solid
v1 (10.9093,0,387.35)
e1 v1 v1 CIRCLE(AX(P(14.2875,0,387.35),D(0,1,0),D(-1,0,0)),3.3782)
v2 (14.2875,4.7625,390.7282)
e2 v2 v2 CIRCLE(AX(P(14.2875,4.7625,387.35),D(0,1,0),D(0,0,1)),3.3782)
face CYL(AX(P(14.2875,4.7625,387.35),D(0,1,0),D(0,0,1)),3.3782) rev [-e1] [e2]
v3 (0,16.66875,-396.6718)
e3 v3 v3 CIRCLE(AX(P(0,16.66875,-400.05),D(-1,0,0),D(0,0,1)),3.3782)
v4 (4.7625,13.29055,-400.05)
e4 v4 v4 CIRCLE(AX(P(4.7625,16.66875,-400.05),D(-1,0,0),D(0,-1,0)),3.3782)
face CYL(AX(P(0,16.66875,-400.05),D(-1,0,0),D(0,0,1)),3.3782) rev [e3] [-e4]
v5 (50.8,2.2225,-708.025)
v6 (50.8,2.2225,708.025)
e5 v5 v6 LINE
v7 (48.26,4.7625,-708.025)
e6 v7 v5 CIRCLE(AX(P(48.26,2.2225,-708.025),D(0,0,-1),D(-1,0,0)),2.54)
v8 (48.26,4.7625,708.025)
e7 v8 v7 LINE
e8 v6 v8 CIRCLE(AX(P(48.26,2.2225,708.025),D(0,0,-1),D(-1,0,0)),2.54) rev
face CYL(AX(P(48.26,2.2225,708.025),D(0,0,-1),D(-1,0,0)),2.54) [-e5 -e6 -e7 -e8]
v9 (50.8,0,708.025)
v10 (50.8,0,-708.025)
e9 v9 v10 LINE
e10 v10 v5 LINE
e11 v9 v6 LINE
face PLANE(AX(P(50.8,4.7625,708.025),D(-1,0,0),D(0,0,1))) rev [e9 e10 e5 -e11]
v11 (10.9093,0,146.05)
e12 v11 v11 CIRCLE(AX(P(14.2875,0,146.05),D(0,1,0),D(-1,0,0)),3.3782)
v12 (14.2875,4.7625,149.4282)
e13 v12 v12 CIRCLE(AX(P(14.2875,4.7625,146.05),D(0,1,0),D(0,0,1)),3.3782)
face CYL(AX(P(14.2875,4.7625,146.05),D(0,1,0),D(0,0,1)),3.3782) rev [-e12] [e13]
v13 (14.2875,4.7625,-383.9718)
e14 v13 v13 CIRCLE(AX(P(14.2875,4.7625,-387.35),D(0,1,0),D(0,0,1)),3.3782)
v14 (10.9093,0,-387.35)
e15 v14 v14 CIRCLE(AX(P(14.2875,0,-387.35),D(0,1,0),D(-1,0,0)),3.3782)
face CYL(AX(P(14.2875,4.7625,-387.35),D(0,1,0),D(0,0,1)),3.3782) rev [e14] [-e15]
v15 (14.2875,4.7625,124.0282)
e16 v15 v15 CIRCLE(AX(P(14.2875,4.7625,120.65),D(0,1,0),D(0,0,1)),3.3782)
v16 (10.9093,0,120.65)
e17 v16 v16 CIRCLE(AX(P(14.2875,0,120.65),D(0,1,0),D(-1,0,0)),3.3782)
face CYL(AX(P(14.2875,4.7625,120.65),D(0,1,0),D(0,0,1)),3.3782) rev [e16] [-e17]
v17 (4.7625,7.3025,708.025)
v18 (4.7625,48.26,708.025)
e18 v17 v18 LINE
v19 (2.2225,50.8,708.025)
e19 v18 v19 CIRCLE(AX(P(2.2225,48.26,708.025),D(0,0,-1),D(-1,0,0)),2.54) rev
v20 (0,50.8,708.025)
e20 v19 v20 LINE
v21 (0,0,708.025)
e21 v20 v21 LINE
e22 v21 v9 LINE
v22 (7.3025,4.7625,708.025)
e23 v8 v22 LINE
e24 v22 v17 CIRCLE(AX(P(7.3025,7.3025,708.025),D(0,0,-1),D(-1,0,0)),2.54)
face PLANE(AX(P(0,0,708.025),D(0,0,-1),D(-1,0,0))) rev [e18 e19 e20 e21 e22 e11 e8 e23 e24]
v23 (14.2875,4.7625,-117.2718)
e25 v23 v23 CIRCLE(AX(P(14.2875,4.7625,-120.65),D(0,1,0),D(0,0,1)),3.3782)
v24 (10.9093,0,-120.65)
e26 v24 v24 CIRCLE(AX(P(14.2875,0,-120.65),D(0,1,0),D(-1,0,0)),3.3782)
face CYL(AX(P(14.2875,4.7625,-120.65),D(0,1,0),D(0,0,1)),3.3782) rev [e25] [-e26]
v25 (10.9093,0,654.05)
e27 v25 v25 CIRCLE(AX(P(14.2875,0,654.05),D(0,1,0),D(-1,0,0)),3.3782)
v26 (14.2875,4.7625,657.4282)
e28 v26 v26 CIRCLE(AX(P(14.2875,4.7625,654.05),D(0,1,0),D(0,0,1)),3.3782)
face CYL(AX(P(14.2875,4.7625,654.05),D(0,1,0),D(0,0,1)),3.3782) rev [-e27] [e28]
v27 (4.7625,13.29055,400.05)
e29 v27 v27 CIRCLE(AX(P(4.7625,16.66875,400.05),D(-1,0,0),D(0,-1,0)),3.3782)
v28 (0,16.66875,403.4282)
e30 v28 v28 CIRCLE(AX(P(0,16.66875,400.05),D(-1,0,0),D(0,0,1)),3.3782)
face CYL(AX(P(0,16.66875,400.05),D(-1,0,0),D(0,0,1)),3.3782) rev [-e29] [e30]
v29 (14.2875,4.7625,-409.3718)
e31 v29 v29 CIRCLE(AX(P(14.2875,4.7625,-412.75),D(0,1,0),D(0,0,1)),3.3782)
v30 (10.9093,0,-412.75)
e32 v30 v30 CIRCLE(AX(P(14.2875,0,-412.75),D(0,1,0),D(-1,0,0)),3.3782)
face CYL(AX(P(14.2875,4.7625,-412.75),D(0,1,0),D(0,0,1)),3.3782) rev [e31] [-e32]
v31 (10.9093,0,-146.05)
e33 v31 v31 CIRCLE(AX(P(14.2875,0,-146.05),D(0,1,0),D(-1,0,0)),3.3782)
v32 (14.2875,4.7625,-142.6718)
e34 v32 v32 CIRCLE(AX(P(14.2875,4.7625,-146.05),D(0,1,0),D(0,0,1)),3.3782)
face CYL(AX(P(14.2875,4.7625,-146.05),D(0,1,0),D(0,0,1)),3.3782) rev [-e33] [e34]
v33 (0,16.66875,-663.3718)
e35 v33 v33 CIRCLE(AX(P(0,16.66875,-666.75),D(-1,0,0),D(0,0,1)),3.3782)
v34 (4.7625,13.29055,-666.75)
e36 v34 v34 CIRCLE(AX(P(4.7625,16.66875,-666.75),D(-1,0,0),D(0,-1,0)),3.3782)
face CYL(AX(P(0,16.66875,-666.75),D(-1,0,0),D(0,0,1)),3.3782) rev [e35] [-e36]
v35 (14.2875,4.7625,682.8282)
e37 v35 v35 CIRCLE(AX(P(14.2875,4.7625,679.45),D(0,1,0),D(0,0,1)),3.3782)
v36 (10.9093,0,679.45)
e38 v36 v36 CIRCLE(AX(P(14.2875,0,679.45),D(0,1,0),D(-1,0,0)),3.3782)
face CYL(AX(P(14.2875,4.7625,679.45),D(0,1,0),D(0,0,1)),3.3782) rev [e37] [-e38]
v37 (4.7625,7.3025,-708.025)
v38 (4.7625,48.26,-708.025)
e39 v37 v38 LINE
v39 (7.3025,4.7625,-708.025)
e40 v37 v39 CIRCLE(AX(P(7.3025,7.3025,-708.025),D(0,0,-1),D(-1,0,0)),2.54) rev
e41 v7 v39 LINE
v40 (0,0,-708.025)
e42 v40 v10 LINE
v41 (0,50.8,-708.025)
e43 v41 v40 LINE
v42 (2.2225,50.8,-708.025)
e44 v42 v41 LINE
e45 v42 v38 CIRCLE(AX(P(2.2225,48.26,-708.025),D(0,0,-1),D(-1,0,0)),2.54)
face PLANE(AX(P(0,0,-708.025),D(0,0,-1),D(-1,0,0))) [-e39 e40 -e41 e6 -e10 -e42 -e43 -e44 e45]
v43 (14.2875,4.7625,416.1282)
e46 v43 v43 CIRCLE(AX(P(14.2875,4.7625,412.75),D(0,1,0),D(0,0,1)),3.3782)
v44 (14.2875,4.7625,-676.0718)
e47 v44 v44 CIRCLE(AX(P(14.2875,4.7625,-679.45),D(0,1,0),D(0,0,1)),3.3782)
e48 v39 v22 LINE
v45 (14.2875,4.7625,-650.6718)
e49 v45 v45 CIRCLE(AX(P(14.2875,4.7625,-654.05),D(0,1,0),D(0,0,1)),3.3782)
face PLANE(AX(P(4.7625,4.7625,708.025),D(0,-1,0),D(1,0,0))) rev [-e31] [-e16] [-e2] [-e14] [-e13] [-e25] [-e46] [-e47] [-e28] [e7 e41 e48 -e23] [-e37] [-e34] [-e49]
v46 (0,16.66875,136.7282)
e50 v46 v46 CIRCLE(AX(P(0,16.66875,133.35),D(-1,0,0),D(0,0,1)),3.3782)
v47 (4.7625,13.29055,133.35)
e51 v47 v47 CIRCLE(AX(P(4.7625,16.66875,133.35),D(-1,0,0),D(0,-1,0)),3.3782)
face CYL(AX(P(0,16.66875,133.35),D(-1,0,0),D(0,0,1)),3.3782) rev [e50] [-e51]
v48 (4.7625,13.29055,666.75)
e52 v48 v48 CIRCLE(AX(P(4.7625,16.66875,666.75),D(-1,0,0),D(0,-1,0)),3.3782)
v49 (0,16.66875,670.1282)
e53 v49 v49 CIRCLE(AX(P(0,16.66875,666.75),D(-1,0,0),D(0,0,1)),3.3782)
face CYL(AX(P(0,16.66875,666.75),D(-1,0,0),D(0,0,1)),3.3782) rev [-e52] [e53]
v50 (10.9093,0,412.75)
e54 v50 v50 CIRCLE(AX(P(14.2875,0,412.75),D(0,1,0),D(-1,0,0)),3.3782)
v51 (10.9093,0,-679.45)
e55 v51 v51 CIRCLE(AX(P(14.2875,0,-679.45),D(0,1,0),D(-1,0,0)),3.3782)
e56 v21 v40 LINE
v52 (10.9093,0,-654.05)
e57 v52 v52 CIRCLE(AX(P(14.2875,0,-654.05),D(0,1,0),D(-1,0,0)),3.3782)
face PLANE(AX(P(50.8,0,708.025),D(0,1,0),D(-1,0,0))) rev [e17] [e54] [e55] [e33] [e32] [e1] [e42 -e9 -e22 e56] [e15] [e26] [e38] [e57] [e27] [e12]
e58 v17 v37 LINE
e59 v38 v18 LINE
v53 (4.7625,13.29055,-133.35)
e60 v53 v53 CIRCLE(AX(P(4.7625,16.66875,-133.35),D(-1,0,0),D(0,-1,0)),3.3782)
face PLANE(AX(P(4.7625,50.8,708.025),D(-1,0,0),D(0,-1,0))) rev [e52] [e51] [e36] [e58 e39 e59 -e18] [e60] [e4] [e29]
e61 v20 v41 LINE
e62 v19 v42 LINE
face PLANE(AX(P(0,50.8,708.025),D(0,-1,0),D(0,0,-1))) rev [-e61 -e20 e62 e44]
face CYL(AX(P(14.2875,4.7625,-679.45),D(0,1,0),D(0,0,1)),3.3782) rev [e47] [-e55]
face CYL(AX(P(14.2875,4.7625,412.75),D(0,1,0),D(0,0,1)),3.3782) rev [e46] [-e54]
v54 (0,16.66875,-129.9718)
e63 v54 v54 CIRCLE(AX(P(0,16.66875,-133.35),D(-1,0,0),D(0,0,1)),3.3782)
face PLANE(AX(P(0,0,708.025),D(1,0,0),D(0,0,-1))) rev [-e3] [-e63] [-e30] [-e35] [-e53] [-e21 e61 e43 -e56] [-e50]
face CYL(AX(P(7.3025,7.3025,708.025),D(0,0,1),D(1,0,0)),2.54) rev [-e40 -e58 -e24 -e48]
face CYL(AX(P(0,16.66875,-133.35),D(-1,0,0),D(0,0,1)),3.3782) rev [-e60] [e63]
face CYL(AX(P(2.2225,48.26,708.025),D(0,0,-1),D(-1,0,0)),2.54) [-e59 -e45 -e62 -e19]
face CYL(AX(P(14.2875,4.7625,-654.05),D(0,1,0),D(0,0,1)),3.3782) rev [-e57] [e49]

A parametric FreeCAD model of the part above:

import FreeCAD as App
import Part
import Sketcher

V = App.Vector
Q = App.Units.Quantity


def edges_at(feature, points):
    """Names of the edges that pass closest to the given points."""
    edges = feature.Shape.Edges
    near = lambda p: min(range(len(edges)), key=lambda i: edges[i].distToShape(Part.Vertex(*p))[0])
    return sorted({f"Edge{near(p) + 1}" for p in points})


def add_polygon(sketch, points):
    """Adds a closed chain of lines whose ends are joined by coincident constraints."""
    first, n = sketch.GeometryCount, len(points)
    for a, b in zip(points, points[1:] + points[:1]):
        sketch.addGeometry(Part.LineSegment(App.Vector(*a, 0), App.Vector(*b, 0)), False)
    for i in range(n):
        sketch.addConstraint(Sketcher.Constraint("Coincident", first + i, 2, first + (i + 1) % n, 1))

doc = App.newDocument("Part")
body = doc.addObject("PartDesign::Body", "Body")

sketch1 = body.newObject("Sketcher::SketchObject", "Sketch")
sketch1.AttachmentSupport = (doc.getObject("XY_Plane"), [""])
sketch1.MapMode = "FlatFace"
add_polygon(sketch1, [(0, 50.8), (0, 0), (50.8, 0), (50.8, 4.7625), (4.7625, 4.7625), (4.7625, 50.8)])
sketch1.addConstraint(Sketcher.Constraint("Vertical", 0))
sketch1.addConstraint(Sketcher.Constraint("Horizontal", 1))
sketch1.addConstraint(Sketcher.Constraint("Vertical", 2))
sketch1.addConstraint(Sketcher.Constraint("Horizontal", 3))
sketch1.addConstraint(Sketcher.Constraint("Vertical", 4))
sketch1.addConstraint(Sketcher.Constraint("Horizontal", 5))
sketch1.addConstraint(Sketcher.Constraint("Coincident", 0, 2, -1, 1))
sketch1.addConstraint(Sketcher.Constraint("Equal", 1, 0))
sketch1.addConstraint(Sketcher.Constraint("Equal", 5, 2))
sketch1.addConstraint(Sketcher.Constraint("DistanceX", 1, 1, 1, 2, Q("2 in")))
sketch1.addConstraint(Sketcher.Constraint("DistanceX", 3, 2, 3, 1, Q("1.8125 in")))
pad1 = body.newObject("PartDesign::Pad", "Pad")
pad1.Profile = sketch1
pad1.Length = Q("55.75 in")
pad1.Midplane = True
doc.recompute()

fillet = body.newObject("PartDesign::Fillet", "Fillet")
fillet.Base = (pad1, edges_at(pad1, [(4.763, 50.8, 0), (4.763, 4.763, 0), (50.8, 4.763, 0)]))
fillet.Radius = Q("0.1 in")

sketch2 = body.newObject("Sketcher::SketchObject", "Sketch001")
sketch2.AttachmentSupport = (doc.getObject("XZ_Plane"), [""])
sketch2.MapMode = "FlatFace"
sketch2.AttachmentOffset = App.Placement(V(0, 0, -0.1875 * 25.4), App.Rotation())
sketch2.addGeometry(Part.Circle(V(14.2875, 679.45, 0), V(0, 0, 1), 3.3782), False)
sketch2.addGeometry(Part.Circle(V(14.2875, 654.05, 0), V(0, 0, 1), 3.3782), False)
sketch2.addConstraint(Sketcher.Constraint("Equal", 0, 1))
sketch2.addConstraint(Sketcher.Constraint("Vertical", 0, 3, 1, 3))
sketch2.addConstraint(Sketcher.Constraint("Diameter", 0, Q("0.266 in")))
sketch2.addConstraint(Sketcher.Constraint("DistanceY", 1, 3, 0, 3, Q("1 in")))
sketch2.addConstraint(Sketcher.Constraint("DistanceY", -1, 1, 0, 3, Q("26.75 in")))
sketch2.addConstraint(Sketcher.Constraint("DistanceX", -1, 1, 0, 3, Q("0.5625 in")))
doc.recompute()
hole = body.newObject("PartDesign::Hole", "Hole")
hole.Profile = sketch2
hole.ThreadType = "None"
hole.Diameter = Q("0.266 in")
hole.DepthType = "ThroughAll"
hole.Reversed = True
doc.recompute()

linearpattern = body.newObject("PartDesign::LinearPattern", "LinearPattern")
linearpattern.Originals = [hole]
linearpattern.Direction = (doc.getObject("Z_Axis"), [""])
linearpattern.Mode = "offset"
linearpattern.Offset = Q("10.5 in")
linearpattern.Occurrences = 6
linearpattern.Reversed = True
body.Tip = linearpattern

sketch3 = body.newObject("Sketcher::SketchObject", "Sketch002")
sketch3.AttachmentSupport = (doc.getObject("YZ_Plane"), [""])
sketch3.MapMode = "FlatFace"
sketch3.addGeometry(Part.Circle(V(16.66875, -666.75, 0), V(0, 0, 1), 3.3782), False)
sketch3.addConstraint(Sketcher.Constraint("Diameter", 0, Q("0.266 in")))
sketch3.addConstraint(Sketcher.Constraint("DistanceY", 0, 3, -1, 1, Q("26.25 in")))
sketch3.addConstraint(Sketcher.Constraint("DistanceX", -1, 1, 0, 3, Q("0.65625 in")))
doc.recompute()
hole2 = body.newObject("PartDesign::Hole", "Hole001")
hole2.Profile = sketch3
hole2.ThreadType = "None"
hole2.Diameter = Q("0.266 in")
hole2.DepthType = "ThroughAll"
hole2.Reversed = True
doc.recompute()

linearpattern2 = body.newObject("PartDesign::LinearPattern", "LinearPattern001")
linearpattern2.Originals = [hole2]
linearpattern2.Direction = (doc.getObject("Z_Axis"), [""])
linearpattern2.Mode = "offset"
linearpattern2.Offset = Q("10.5 in")
linearpattern2.Occurrences = 6
body.Tip = linearpattern2

doc.recompute()
